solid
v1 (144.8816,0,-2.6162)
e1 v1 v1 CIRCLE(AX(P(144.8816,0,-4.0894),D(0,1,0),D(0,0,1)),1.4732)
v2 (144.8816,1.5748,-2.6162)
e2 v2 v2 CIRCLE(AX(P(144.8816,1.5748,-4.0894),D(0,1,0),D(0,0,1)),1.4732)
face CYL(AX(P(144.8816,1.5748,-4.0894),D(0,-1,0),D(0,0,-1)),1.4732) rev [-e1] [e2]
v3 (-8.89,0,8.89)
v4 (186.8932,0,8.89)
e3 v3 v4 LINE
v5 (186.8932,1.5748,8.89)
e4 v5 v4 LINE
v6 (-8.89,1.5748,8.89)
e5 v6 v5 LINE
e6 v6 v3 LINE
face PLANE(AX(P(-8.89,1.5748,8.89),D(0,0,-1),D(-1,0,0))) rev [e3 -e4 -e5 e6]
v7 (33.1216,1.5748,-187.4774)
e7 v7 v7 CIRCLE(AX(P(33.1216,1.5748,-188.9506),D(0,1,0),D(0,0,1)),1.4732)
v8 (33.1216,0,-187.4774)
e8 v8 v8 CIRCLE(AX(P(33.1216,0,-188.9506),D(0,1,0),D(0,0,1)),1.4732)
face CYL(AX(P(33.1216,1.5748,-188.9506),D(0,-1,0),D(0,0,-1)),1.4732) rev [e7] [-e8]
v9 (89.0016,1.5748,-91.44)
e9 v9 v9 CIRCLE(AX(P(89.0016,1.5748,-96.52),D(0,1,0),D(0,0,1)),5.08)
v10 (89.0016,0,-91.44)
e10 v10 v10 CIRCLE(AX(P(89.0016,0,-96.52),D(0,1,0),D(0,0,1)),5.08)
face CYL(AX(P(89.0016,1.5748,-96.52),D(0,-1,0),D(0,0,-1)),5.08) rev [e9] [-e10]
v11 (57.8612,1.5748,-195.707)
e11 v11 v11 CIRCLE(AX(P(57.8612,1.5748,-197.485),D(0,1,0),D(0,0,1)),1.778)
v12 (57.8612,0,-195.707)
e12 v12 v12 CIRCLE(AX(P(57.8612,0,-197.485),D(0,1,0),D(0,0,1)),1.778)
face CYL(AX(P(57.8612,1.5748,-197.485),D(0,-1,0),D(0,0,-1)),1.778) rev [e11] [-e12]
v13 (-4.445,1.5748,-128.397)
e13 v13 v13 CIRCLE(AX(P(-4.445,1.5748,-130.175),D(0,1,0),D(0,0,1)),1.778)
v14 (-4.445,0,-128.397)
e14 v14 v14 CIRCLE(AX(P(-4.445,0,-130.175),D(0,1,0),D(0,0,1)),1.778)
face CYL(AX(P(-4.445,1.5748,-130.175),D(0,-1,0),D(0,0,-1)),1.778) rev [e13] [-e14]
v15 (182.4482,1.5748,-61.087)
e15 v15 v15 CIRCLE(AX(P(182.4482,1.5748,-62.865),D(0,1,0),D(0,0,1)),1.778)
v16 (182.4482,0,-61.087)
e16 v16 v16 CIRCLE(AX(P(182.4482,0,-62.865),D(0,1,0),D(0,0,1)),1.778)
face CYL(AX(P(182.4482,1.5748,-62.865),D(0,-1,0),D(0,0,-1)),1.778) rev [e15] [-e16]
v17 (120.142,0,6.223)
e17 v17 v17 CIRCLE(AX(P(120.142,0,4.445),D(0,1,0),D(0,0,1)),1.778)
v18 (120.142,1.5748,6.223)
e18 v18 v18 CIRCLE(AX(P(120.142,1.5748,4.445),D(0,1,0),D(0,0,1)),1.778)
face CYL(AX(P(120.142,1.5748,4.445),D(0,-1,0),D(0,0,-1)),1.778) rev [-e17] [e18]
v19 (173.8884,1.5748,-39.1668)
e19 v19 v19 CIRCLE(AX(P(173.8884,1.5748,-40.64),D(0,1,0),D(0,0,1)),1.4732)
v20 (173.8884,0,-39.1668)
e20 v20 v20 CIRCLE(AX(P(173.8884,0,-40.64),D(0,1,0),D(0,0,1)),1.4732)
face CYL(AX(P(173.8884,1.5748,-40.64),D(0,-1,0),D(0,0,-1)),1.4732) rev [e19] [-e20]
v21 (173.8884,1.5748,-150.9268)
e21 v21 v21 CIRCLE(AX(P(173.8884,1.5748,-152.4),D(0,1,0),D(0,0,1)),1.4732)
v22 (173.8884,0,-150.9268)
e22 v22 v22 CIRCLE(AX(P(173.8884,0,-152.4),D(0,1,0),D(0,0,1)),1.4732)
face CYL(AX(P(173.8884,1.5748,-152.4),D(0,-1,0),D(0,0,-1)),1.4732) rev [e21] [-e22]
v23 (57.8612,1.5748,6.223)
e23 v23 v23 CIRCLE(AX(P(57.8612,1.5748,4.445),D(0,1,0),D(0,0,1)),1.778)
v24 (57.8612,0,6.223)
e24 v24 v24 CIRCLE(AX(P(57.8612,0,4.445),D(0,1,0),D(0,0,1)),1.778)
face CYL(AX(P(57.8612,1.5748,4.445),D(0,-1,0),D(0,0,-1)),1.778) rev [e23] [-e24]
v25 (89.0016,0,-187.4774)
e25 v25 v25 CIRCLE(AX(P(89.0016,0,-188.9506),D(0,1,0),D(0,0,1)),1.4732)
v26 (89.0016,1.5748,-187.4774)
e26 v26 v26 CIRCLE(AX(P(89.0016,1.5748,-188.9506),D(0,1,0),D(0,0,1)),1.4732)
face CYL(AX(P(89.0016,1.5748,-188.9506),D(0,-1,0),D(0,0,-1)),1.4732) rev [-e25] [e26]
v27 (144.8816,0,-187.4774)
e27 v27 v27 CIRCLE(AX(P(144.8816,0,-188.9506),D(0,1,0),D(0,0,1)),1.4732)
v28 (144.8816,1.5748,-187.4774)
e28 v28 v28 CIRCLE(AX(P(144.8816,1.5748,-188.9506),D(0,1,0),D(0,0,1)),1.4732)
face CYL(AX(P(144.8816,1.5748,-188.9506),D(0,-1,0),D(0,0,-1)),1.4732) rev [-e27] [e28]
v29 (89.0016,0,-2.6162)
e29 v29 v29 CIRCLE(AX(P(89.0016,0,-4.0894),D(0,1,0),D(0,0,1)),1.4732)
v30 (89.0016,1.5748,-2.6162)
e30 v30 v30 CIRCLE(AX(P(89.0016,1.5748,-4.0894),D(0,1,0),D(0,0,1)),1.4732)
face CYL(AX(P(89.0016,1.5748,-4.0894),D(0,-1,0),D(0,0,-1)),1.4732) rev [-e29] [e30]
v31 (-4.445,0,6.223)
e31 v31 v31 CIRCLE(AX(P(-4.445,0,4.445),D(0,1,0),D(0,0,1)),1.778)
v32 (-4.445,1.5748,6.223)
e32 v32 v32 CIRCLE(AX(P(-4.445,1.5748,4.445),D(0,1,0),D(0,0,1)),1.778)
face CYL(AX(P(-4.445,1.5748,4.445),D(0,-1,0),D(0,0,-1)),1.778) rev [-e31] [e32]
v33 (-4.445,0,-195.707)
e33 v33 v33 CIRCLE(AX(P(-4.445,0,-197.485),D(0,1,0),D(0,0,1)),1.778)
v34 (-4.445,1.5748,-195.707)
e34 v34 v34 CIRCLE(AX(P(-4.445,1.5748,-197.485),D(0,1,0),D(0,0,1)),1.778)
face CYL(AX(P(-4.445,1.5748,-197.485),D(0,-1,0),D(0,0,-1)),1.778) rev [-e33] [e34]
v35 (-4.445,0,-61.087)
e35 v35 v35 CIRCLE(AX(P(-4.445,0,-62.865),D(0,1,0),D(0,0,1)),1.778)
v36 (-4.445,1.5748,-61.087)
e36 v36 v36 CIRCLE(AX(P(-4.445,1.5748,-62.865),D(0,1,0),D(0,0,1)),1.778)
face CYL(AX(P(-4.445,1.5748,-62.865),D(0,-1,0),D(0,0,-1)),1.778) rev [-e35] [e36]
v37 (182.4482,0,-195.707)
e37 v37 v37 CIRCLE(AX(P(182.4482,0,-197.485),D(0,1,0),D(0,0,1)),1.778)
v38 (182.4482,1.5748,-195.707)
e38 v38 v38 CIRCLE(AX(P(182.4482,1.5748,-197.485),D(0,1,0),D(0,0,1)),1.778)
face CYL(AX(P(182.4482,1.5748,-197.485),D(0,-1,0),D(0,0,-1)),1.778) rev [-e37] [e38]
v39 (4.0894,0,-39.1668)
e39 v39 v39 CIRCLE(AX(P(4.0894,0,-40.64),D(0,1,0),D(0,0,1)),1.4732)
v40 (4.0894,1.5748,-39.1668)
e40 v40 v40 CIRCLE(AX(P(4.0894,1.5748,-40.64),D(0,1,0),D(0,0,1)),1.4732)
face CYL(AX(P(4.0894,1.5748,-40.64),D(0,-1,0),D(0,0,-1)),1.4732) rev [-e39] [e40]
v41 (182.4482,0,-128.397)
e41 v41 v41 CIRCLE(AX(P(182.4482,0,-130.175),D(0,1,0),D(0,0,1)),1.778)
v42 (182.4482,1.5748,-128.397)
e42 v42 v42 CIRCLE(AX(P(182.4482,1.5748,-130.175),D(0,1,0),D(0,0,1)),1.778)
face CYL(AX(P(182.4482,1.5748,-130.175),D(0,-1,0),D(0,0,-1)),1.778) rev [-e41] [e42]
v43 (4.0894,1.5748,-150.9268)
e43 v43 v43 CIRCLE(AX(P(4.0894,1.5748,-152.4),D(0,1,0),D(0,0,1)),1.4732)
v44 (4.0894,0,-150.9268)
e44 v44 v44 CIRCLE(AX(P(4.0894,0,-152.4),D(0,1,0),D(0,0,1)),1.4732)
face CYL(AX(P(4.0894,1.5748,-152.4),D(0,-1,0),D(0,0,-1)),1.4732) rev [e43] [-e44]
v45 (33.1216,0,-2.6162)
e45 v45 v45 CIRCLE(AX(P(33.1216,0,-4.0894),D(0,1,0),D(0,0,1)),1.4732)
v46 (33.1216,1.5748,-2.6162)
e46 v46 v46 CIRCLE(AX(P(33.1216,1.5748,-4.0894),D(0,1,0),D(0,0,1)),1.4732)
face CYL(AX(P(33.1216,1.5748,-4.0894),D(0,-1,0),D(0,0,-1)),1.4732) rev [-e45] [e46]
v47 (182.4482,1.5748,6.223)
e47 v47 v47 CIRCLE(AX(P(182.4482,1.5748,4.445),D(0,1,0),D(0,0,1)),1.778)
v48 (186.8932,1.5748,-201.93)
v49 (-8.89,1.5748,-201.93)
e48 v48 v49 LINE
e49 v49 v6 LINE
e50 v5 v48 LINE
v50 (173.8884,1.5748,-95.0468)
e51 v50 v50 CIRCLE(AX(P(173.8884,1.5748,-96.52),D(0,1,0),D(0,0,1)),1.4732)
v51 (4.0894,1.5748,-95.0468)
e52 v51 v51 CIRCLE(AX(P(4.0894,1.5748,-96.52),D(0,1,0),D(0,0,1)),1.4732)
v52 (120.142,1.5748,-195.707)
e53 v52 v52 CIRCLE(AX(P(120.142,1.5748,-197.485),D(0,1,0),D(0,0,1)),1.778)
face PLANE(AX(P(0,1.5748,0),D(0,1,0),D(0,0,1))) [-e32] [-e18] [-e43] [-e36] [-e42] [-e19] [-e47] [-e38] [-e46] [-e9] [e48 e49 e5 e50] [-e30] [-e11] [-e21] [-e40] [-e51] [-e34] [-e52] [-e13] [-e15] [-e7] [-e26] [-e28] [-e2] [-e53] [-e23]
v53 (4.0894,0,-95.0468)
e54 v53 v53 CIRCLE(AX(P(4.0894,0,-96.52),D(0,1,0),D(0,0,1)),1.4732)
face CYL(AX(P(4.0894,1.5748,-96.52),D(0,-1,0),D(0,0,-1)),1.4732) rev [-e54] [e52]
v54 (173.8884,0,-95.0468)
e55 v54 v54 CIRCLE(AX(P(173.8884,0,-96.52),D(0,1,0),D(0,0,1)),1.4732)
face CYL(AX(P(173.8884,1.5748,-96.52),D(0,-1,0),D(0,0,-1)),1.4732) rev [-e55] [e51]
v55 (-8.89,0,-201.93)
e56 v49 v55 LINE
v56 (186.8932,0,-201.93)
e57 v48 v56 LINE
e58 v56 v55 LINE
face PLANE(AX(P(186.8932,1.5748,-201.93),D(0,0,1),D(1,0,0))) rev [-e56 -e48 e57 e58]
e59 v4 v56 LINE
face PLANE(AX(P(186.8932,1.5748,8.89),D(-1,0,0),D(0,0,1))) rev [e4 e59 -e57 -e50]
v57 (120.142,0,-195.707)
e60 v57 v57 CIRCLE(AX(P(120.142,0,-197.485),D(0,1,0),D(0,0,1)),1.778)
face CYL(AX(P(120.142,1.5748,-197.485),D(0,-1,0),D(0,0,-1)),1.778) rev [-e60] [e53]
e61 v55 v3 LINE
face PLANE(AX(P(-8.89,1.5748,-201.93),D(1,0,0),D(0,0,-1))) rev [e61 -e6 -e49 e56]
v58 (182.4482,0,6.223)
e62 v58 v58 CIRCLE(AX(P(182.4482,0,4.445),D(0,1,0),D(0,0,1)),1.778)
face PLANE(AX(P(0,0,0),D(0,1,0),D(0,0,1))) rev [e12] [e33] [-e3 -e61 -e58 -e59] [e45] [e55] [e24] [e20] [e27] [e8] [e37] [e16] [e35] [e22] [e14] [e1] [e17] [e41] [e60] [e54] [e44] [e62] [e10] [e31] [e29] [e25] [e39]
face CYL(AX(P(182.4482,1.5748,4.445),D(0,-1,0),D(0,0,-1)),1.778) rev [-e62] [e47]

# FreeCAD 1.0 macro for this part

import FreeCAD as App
import Part
import Sketcher

V = App.Vector
Q = App.Units.Quantity

doc = App.newDocument("Part")
body = doc.addObject("PartDesign::Body", "Body")

sketch1 = doc.addObject("Sketcher::SketchObject", "Sketch")
body.addObject(sketch1)
sketch1.AttachmentSupport = (doc.XZ_Plane, [""])
sketch1.MapMode = "FlatFace"
sketch1.addGeometry(Part.LineSegment(V(-8.9, -201.9, 0), V(-8.9, 8.9, 0)), False)
sketch1.addGeometry(Part.LineSegment(V(-8.9, 8.9, 0), V(186.9, 8.9, 0)), False)
sketch1.addGeometry(Part.LineSegment(V(186.9, 8.9, 0), V(186.9, -201.9, 0)), False)
sketch1.addGeometry(Part.LineSegment(V(186.9, -201.9, 0), V(-8.9, -201.9, 0)), False)
sketch1.addGeometry(Part.Circle(V(-4.4, 4.4, 0), V(0, 0, 1), 1.8), False)
sketch1.addGeometry(Part.Circle(V(33.1, -4.1, 0), V(0, 0, 1), 1.5), False)
sketch1.addGeometry(Part.Circle(V(4.1, -40.6, 0), V(0, 0, 1), 1.5), False)
sketch1.addGeometry(Part.Circle(V(57.9, 4.4, 0), V(0, 0, 1), 1.8), False)
sketch1.addGeometry(Part.Circle(V(89, -4.1, 0), V(0, 0, 1), 1.5), False)
sketch1.addGeometry(Part.Circle(V(-4.4, -62.9, 0), V(0, 0, 1), 1.8), False)
sketch1.addGeometry(Part.Circle(V(4.1, -96.5, 0), V(0, 0, 1), 1.5), False)
sketch1.addGeometry(Part.Circle(V(89, -96.5, 0), V(0, 0, 1), 5.1), False)
sketch1.addGeometry(Part.Circle(V(120.1, 4.4, 0), V(0, 0, 1), 1.8), False)
sketch1.addGeometry(Part.Circle(V(144.9, -4.1, 0), V(0, 0, 1), 1.5), False)
sketch1.addGeometry(Part.Circle(V(182.4, 4.4, 0), V(0, 0, 1), 1.8), False)
sketch1.addGeometry(Part.Circle(V(173.9, -40.6, 0), V(0, 0, 1), 1.5), False)
sketch1.addGeometry(Part.Circle(V(182.4, -62.9, 0), V(0, 0, 1), 1.8), False)
sketch1.addGeometry(Part.Circle(V(173.9, -96.5, 0), V(0, 0, 1), 1.5), False)
sketch1.addGeometry(Part.Circle(V(-4.4, -130.2, 0), V(0, 0, 1), 1.8), False)
sketch1.addGeometry(Part.Circle(V(4.1, -152.4, 0), V(0, 0, 1), 1.5), False)
sketch1.addGeometry(Part.Circle(V(-4.4, -197.5, 0), V(0, 0, 1), 1.8), False)
sketch1.addGeometry(Part.Circle(V(33.1, -189, 0), V(0, 0, 1), 1.5), False)
sketch1.addGeometry(Part.Circle(V(57.9, -197.5, 0), V(0, 0, 1), 1.8), False)
sketch1.addGeometry(Part.Circle(V(89, -189, 0), V(0, 0, 1), 1.5), False)
sketch1.addGeometry(Part.Circle(V(182.4, -130.2, 0), V(0, 0, 1), 1.8), False)
sketch1.addGeometry(Part.Circle(V(120.1, -197.5, 0), V(0, 0, 1), 1.8), False)
sketch1.addGeometry(Part.Circle(V(173.9, -152.4, 0), V(0, 0, 1), 1.5), False)
sketch1.addGeometry(Part.Circle(V(144.9, -189, 0), V(0, 0, 1), 1.5), False)
sketch1.addGeometry(Part.Circle(V(182.4, -197.5, 0), V(0, 0, 1), 1.8), False)
sketch1.addConstraint(Sketcher.Constraint("Coincident", 0, 2, 1, 1))
sketch1.addConstraint(Sketcher.Constraint("Coincident", 1, 2, 2, 1))
sketch1.addConstraint(Sketcher.Constraint("Coincident", 2, 2, 3, 1))
sketch1.addConstraint(Sketcher.Constraint("Coincident", 3, 2, 0, 1))
sketch1.addConstraint(Sketcher.Constraint("Vertical", 0))
sketch1.addConstraint(Sketcher.Constraint("Horizontal", 1))
sketch1.addConstraint(Sketcher.Constraint("Vertical", 2))
sketch1.addConstraint(Sketcher.Constraint("Horizontal", 3))
sketch1.addConstraint(Sketcher.Constraint("Equal", 5, 6))
sketch1.addConstraint(Sketcher.Constraint("Equal", 4, 7))
sketch1.addConstraint(Sketcher.Constraint("Equal", 6, 8))
sketch1.addConstraint(Sketcher.Constraint("Equal", 7, 9))
sketch1.addConstraint(Sketcher.Constraint("Equal", 8, 10))
sketch1.addConstraint(Sketcher.Constraint("Equal", 9, 12))
sketch1.addConstraint(Sketcher.Constraint("Equal", 10, 13))
sketch1.addConstraint(Sketcher.Constraint("Equal", 12, 14))
sketch1.addConstraint(Sketcher.Constraint("Equal", 13, 15))
sketch1.addConstraint(Sketcher.Constraint("Equal", 14, 16))
sketch1.addConstraint(Sketcher.Constraint("Equal", 15, 17))
sketch1.addConstraint(Sketcher.Constraint("Equal", 16, 18))
sketch1.addConstraint(Sketcher.Constraint("Equal", 17, 19))
sketch1.addConstraint(Sketcher.Constraint("Equal", 18, 20))
sketch1.addConstraint(Sketcher.Constraint("Equal", 19, 21))
sketch1.addConstraint(Sketcher.Constraint("Equal", 20, 22))
sketch1.addConstraint(Sketcher.Constraint("Equal", 21, 23))
sketch1.addConstraint(Sketcher.Constraint("Equal", 22, 24))
sketch1.addConstraint(Sketcher.Constraint("Equal", 24, 25))
sketch1.addConstraint(Sketcher.Constraint("Equal", 23, 26))
sketch1.addConstraint(Sketcher.Constraint("Equal", 26, 27))
sketch1.addConstraint(Sketcher.Constraint("Equal", 25, 28))
sketch1.addConstraint(Sketcher.Constraint("Horizontal", 4, 3, 7, 3))
sketch1.addConstraint(Sketcher.Constraint("Horizontal", 5, 3, 8, 3))
sketch1.addConstraint(Sketcher.Constraint("Horizontal", 10, 3, 11, 3))
sketch1.addConstraint(Sketcher.Constraint("Horizontal", 7, 3, 12, 3))
sketch1.addConstraint(Sketcher.Constraint("Horizontal", 8, 3, 13, 3))
sketch1.addConstraint(Sketcher.Constraint("Horizontal", 12, 3, 14, 3))
sketch1.addConstraint(Sketcher.Constraint("Horizontal", 6, 3, 15, 3))
sketch1.addConstraint(Sketcher.Constraint("Horizontal", 9, 3, 16, 3))
sketch1.addConstraint(Sketcher.Constraint("Horizontal", 11, 3, 17, 3))
sketch1.addConstraint(Sketcher.Constraint("Horizontal", 20, 3, 22, 3))
sketch1.addConstraint(Sketcher.Constraint("Horizontal", 21, 3, 23, 3))
sketch1.addConstraint(Sketcher.Constraint("Horizontal", 18, 3, 24, 3))
sketch1.addConstraint(Sketcher.Constraint("Horizontal", 22, 3, 25, 3))
sketch1.addConstraint(Sketcher.Constraint("Horizontal", 19, 3, 26, 3))
sketch1.addConstraint(Sketcher.Constraint("Horizontal", 23, 3, 27, 3))
sketch1.addConstraint(Sketcher.Constraint("Horizontal", 25, 3, 28, 3))
sketch1.addConstraint(Sketcher.Constraint("Vertical", 4, 3, 9, 3))
sketch1.addConstraint(Sketcher.Constraint("Vertical", 6, 3, 10, 3))
sketch1.addConstraint(Sketcher.Constraint("Vertical", 8, 3, 11, 3))
sketch1.addConstraint(Sketcher.Constraint("Vertical", 14, 3, 16, 3))
sketch1.addConstraint(Sketcher.Constraint("Vertical", 15, 3, 17, 3))
sketch1.addConstraint(Sketcher.Constraint("Vertical", 9, 3, 18, 3))
sketch1.addConstraint(Sketcher.Constraint("Vertical", 10, 3, 19, 3))
sketch1.addConstraint(Sketcher.Constraint("Vertical", 18, 3, 20, 3))
sketch1.addConstraint(Sketcher.Constraint("Vertical", 5, 3, 21, 3))
sketch1.addConstraint(Sketcher.Constraint("Vertical", 7, 3, 22, 3))
sketch1.addConstraint(Sketcher.Constraint("Vertical", 11, 3, 23, 3))
sketch1.addConstraint(Sketcher.Constraint("Vertical", 16, 3, 24, 3))
sketch1.addConstraint(Sketcher.Constraint("Vertical", 12, 3, 25, 3))
sketch1.addConstraint(Sketcher.Constraint("Vertical", 17, 3, 26, 3))
sketch1.addConstraint(Sketcher.Constraint("Vertical", 13, 3, 27, 3))
sketch1.addConstraint(Sketcher.Constraint("Vertical", 24, 3, 28, 3))
sketch1.addConstraint(Sketcher.Constraint("Diameter", 11, Q("0.4 in")))
sketch1.addConstraint(Sketcher.Constraint("Diameter", 4, Q("0.14 in")))
sketch1.addConstraint(Sketcher.Constraint("Diameter", 5, Q("0.116 in")))
sketch1.addConstraint(Sketcher.Constraint("DistanceY", 0, 1, 0, 2, Q("8.3 in")))
sketch1.addConstraint(Sketcher.Constraint("DistanceY", 19, 3, -1, 1, Q("6 in")))
sketch1.addConstraint(Sketcher.Constraint("DistanceY", 6, 3, -1, 1, Q("1.6 in")))
sketch1.addConstraint(Sketcher.Constraint("DistanceY", 10, 3, -1, 1, Q("3.8 in")))
sketch1.addConstraint(Sketcher.Constraint("DistanceX", 5, 3, 8, 3, Q("2.2 in")))
sketch1.addConstraint(Sketcher.Constraint("DistanceX", 8, 3, 13, 3, Q("2.2 in")))
sketch1.addConstraint(Sketcher.Constraint("DistanceY", 20, 3, 9, 3, Q("5.3 in")))
sketch1.addConstraint(Sketcher.Constraint("DistanceX", 1, 1, 1, 2, Q("7.708 in")))
sketch1.addConstraint(Sketcher.Constraint("DistanceX", -1, 1, 12, 3, Q("4.73 in")))
sketch1.addConstraint(Sketcher.Constraint("DistanceX", 0, 2, -1, 1, Q("0.35 in")))
sketch1.addConstraint(Sketcher.Constraint("DistanceY", -1, 1, 0, 2, Q("0.35 in")))
sketch1.addConstraint(Sketcher.Constraint("DistanceY", 9, 3, 4, 3, Q("2.65 in")))
sketch1.addConstraint(Sketcher.Constraint("DistanceY", 18, 3, 9, 3, Q("2.65 in")))
sketch1.addConstraint(Sketcher.Constraint("DistanceX", 4, 3, -1, 1, Q("0.175 in")))
sketch1.addConstraint(Sketcher.Constraint("DistanceY", -1, 1, 4, 3, Q("0.175 in")))
sketch1.addConstraint(Sketcher.Constraint("DistanceX", -1, 1, 5, 3, Q("1.304 in")))
sketch1.addConstraint(Sketcher.Constraint("DistanceY", 5, 3, -1, 1, Q("0.161 in")))
sketch1.addConstraint(Sketcher.Constraint("DistanceX", -1, 1, 6, 3, Q("0.161 in")))
sketch1.addConstraint(Sketcher.Constraint("DistanceX", -1, 1, 7, 3, Q("2.278 in")))
sketch1.addConstraint(Sketcher.Constraint("DistanceX", -1, 1, 14, 3, Q("7.183 in")))
sketch1.addConstraint(Sketcher.Constraint("DistanceX", -1, 1, 15, 3, Q("6.846 in")))
sketch1.addConstraint(Sketcher.Constraint("DistanceY", 21, 3, -1, 1, Q("7.439 in")))
pad1 = doc.addObject("PartDesign::Pad", "Pad")
body.addObject(pad1)
pad1.Profile = sketch1
pad1.Length = Q("0.062 in")
pad1.Reversed = True

doc.recompute()
